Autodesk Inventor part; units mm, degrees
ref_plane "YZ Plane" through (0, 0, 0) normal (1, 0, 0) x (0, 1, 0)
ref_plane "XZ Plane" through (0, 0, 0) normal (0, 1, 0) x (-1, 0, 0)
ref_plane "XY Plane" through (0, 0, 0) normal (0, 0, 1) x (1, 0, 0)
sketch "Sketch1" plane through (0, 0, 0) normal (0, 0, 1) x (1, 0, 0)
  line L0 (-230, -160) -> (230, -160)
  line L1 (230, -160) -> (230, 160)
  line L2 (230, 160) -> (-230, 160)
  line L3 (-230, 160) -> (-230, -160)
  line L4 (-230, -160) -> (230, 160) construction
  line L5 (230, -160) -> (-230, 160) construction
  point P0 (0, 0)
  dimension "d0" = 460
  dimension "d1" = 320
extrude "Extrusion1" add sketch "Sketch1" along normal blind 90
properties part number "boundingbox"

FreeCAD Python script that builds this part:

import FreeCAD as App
import Part
import Sketcher

doc = App.newDocument("Part")
params = doc.addObject("Spreadsheet::Sheet", "Params")
for row, (alias, value) in enumerate([
    ("sketch1_width", "460 mm"),
    ("sketch1_height", "320 mm"),
    ("pad1_length", "90 mm"),
], start=1):
    params.set(f"A{row}", alias)
    params.set(f"B{row}", "=" + value)
    params.setAlias(f"B{row}", alias)

body = doc.addObject("PartDesign::Body", "Body")

sketch1 = body.newObject("Sketcher::SketchObject", "Sketch")
sketch1.AttachmentSupport = (doc.getObject("XY_Plane"), [""])
sketch1.MapMode = "FlatFace"
sketch1.addGeometry(Part.LineSegment(App.Vector(-230, 160, 0), App.Vector(-230, -160, 0)), False)
sketch1.addGeometry(Part.LineSegment(App.Vector(-230, -160, 0), App.Vector(230, -160, 0)), False)
sketch1.addGeometry(Part.LineSegment(App.Vector(230, -160, 0), App.Vector(230, 160, 0)), False)
sketch1.addGeometry(Part.LineSegment(App.Vector(230, 160, 0), App.Vector(-230, 160, 0)), False)
sketch1.addConstraint(Sketcher.Constraint("Coincident", 0, 2, 1, 1))
sketch1.addConstraint(Sketcher.Constraint("Coincident", 1, 2, 2, 1))
sketch1.addConstraint(Sketcher.Constraint("Coincident", 2, 2, 3, 1))
sketch1.addConstraint(Sketcher.Constraint("Coincident", 3, 2, 0, 1))
sketch1.addConstraint(Sketcher.Constraint("Vertical", 0))
sketch1.addConstraint(Sketcher.Constraint("Horizontal", 1))
sketch1.addConstraint(Sketcher.Constraint("Vertical", 2))
sketch1.addConstraint(Sketcher.Constraint("Horizontal", 3))
sketch1.addConstraint(Sketcher.Constraint("Symmetric", 0, 2, 2, 2, -1, 1))
sketch1.addConstraint(Sketcher.Constraint("DistanceX", 1, 1, 1, 2, 460.0))
sketch1.addConstraint(Sketcher.Constraint("DistanceY", 0, 2, 0, 1, 320.0))
sketch1.setExpression("Constraints[9]", "Params.sketch1_width")
sketch1.setExpression("Constraints[10]", "Params.sketch1_height")
pad1 = body.newObject("PartDesign::Pad", "Pad")
pad1.Profile = sketch1
pad1.setExpression("Length", "Params.pad1_length")

doc.recompute()
